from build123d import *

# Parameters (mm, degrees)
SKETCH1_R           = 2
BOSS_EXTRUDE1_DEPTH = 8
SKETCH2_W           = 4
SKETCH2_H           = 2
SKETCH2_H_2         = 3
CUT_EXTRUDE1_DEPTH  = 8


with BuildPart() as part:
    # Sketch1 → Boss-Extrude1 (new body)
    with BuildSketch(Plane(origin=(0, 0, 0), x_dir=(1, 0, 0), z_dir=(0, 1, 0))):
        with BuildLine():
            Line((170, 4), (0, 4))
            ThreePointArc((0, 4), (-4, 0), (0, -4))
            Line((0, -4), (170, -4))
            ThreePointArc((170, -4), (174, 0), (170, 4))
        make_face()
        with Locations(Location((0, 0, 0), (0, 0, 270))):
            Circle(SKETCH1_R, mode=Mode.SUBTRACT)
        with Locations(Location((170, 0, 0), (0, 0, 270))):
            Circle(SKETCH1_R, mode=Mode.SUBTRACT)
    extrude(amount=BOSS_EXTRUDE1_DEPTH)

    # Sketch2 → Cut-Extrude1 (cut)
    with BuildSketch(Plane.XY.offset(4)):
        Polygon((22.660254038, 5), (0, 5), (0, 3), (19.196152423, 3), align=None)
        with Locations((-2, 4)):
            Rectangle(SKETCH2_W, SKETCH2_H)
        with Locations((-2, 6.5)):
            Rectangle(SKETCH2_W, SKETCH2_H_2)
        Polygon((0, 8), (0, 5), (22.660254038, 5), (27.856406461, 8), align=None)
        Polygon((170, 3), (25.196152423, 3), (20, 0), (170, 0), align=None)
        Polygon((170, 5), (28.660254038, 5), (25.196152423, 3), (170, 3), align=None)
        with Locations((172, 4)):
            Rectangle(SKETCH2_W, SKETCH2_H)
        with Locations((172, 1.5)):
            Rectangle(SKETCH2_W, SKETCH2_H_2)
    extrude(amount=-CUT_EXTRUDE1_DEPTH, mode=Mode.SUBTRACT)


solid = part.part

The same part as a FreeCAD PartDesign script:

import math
import FreeCAD as App
import Part
import Sketcher
Q = App.Units.Quantity


def add_polygon(sketch, points):
    """Adds a closed chain of lines whose ends are joined by coincident constraints."""
    first, n = sketch.GeometryCount, len(points)
    for a, b in zip(points, points[1:] + points[:1]):
        sketch.addGeometry(Part.LineSegment(App.Vector(*a, 0), App.Vector(*b, 0)), False)
    for i in range(n):
        sketch.addConstraint(Sketcher.Constraint("Coincident", first + i, 2, first + (i + 1) % n, 1))

doc = App.newDocument("Part")
body = doc.addObject("PartDesign::Body", "Body")

# Sketch on XZ plane
sketch1 = body.newObject("Sketcher::SketchObject", "Sketch")
sketch1.AttachmentSupport = (doc.getObject("XZ_Plane"), [""])
sketch1.MapMode = "FlatFace"
sketch1.addGeometry(Part.LineSegment(App.Vector(170, -4, 0), App.Vector(0, -4, 0)), False)
sketch1.addGeometry(Part.ArcOfCircle(Part.Circle(App.Vector(0, 0, 0), App.Vector(0, 0, 1), 4), math.radians(90), math.radians(270)), False)
sketch1.addGeometry(Part.LineSegment(App.Vector(0, 4, 0), App.Vector(170, 4, 0)), False)
sketch1.addGeometry(Part.ArcOfCircle(Part.Circle(App.Vector(170, 0, 0), App.Vector(0, 0, 1), 4), math.radians(-90), math.radians(90)), False)
sketch1.addGeometry(Part.Circle(App.Vector(0, 0, 0), App.Vector(0, 0, 1), 2), False)
sketch1.addGeometry(Part.Circle(App.Vector(170, 0, 0), App.Vector(0, 0, 1), 2), False)
sketch1.addConstraint(Sketcher.Constraint("Tangent", 0, 2, 1, 2))
sketch1.addConstraint(Sketcher.Constraint("Tangent", 1, 1, 2, 1))
sketch1.addConstraint(Sketcher.Constraint("Tangent", 2, 2, 3, 2))
sketch1.addConstraint(Sketcher.Constraint("Tangent", 3, 1, 0, 1))
sketch1.addConstraint(Sketcher.Constraint("Horizontal", 0))
sketch1.addConstraint(Sketcher.Constraint("Horizontal", 2))
sketch1.addConstraint(Sketcher.Constraint("Coincident", 1, 3, -1, 1))
sketch1.addConstraint(Sketcher.Constraint("Coincident", 4, 3, -1, 1))
sketch1.addConstraint(Sketcher.Constraint("Coincident", 5, 3, 3, 3))
sketch1.addConstraint(Sketcher.Constraint("Equal", 4, 5))
sketch1.addConstraint(Sketcher.Constraint("Diameter", 4, 4.0))
sketch1.addConstraint(Sketcher.Constraint("Radius", 1, 4.0))
sketch1.addConstraint(Sketcher.Constraint("DistanceX", 0, 2, 0, 1, 170.0))
pad1 = body.newObject("PartDesign::Pad", "Pad")
pad1.Profile = sketch1
pad1.Length = 8
pad1.Reversed = True

# Sketch on XY plane
sketch2 = body.newObject("Sketcher::SketchObject", "Sketch001")
sketch2.AttachmentSupport = (doc.getObject("XY_Plane"), [""])
sketch2.MapMode = "FlatFace"
sketch2.AttachmentOffset = App.Placement(App.Vector(0, 0, 4), App.Rotation())
add_polygon(sketch2, [(-4, 8), (-4, 3), (19.2, 3), (22.7, 5), (27.9, 8)])  # lines 0-4
add_polygon(sketch2, [(25.2, 3), (20, 0), (174, 0), (174, 5), (28.7, 5)])  # lines 5-9
sketch2.addConstraint(Sketcher.Constraint("Vertical", 0))
sketch2.addConstraint(Sketcher.Constraint("Horizontal", 1))
sketch2.addConstraint(Sketcher.Constraint("Horizontal", 4))
sketch2.addConstraint(Sketcher.Constraint("Horizontal", 6))
sketch2.addConstraint(Sketcher.Constraint("Vertical", 7))
sketch2.addConstraint(Sketcher.Constraint("Horizontal", 8))
sketch2.addConstraint(Sketcher.Constraint("PointOnObject", 5, 2, -1))
sketch2.addConstraint(Sketcher.Constraint("Parallel", 2, 3))
sketch2.addConstraint(Sketcher.Constraint("Parallel", 3, 5))
sketch2.addConstraint(Sketcher.Constraint("Parallel", 5, 9))
sketch2.addConstraint(Sketcher.Constraint("Horizontal", 2, 2, 7, 2))
sketch2.addConstraint(Sketcher.Constraint("Horizontal", 1, 2, 9, 2))
sketch2.addConstraint(Sketcher.Constraint("Equal", 0, 7))
sketch2.addConstraint(Sketcher.Constraint("DistanceX", 6, 1, 6, 2, 154.0))
sketch2.addConstraint(Sketcher.Constraint("DistanceY", 0, 2, 0, 1, 5.0))
sketch2.addConstraint(Sketcher.Constraint("Angle", 2, Q("30 deg")))
sketch2.addConstraint(Sketcher.Constraint("Distance", 2, 4.0))
sketch2.addConstraint(Sketcher.Constraint("DistanceX", 0, 2, -1, 1, 4.0))
sketch2.addConstraint(Sketcher.Constraint("DistanceX", -1, 1, 5, 2, 20.0))
sketch2.addConstraint(Sketcher.Constraint("DistanceX", 2, 2, 8, 2, 6.0))
pocket1 = body.newObject("PartDesign::Pocket", "Pocket")
pocket1.Profile = sketch2
pocket1.Length = 8

doc.recompute()
